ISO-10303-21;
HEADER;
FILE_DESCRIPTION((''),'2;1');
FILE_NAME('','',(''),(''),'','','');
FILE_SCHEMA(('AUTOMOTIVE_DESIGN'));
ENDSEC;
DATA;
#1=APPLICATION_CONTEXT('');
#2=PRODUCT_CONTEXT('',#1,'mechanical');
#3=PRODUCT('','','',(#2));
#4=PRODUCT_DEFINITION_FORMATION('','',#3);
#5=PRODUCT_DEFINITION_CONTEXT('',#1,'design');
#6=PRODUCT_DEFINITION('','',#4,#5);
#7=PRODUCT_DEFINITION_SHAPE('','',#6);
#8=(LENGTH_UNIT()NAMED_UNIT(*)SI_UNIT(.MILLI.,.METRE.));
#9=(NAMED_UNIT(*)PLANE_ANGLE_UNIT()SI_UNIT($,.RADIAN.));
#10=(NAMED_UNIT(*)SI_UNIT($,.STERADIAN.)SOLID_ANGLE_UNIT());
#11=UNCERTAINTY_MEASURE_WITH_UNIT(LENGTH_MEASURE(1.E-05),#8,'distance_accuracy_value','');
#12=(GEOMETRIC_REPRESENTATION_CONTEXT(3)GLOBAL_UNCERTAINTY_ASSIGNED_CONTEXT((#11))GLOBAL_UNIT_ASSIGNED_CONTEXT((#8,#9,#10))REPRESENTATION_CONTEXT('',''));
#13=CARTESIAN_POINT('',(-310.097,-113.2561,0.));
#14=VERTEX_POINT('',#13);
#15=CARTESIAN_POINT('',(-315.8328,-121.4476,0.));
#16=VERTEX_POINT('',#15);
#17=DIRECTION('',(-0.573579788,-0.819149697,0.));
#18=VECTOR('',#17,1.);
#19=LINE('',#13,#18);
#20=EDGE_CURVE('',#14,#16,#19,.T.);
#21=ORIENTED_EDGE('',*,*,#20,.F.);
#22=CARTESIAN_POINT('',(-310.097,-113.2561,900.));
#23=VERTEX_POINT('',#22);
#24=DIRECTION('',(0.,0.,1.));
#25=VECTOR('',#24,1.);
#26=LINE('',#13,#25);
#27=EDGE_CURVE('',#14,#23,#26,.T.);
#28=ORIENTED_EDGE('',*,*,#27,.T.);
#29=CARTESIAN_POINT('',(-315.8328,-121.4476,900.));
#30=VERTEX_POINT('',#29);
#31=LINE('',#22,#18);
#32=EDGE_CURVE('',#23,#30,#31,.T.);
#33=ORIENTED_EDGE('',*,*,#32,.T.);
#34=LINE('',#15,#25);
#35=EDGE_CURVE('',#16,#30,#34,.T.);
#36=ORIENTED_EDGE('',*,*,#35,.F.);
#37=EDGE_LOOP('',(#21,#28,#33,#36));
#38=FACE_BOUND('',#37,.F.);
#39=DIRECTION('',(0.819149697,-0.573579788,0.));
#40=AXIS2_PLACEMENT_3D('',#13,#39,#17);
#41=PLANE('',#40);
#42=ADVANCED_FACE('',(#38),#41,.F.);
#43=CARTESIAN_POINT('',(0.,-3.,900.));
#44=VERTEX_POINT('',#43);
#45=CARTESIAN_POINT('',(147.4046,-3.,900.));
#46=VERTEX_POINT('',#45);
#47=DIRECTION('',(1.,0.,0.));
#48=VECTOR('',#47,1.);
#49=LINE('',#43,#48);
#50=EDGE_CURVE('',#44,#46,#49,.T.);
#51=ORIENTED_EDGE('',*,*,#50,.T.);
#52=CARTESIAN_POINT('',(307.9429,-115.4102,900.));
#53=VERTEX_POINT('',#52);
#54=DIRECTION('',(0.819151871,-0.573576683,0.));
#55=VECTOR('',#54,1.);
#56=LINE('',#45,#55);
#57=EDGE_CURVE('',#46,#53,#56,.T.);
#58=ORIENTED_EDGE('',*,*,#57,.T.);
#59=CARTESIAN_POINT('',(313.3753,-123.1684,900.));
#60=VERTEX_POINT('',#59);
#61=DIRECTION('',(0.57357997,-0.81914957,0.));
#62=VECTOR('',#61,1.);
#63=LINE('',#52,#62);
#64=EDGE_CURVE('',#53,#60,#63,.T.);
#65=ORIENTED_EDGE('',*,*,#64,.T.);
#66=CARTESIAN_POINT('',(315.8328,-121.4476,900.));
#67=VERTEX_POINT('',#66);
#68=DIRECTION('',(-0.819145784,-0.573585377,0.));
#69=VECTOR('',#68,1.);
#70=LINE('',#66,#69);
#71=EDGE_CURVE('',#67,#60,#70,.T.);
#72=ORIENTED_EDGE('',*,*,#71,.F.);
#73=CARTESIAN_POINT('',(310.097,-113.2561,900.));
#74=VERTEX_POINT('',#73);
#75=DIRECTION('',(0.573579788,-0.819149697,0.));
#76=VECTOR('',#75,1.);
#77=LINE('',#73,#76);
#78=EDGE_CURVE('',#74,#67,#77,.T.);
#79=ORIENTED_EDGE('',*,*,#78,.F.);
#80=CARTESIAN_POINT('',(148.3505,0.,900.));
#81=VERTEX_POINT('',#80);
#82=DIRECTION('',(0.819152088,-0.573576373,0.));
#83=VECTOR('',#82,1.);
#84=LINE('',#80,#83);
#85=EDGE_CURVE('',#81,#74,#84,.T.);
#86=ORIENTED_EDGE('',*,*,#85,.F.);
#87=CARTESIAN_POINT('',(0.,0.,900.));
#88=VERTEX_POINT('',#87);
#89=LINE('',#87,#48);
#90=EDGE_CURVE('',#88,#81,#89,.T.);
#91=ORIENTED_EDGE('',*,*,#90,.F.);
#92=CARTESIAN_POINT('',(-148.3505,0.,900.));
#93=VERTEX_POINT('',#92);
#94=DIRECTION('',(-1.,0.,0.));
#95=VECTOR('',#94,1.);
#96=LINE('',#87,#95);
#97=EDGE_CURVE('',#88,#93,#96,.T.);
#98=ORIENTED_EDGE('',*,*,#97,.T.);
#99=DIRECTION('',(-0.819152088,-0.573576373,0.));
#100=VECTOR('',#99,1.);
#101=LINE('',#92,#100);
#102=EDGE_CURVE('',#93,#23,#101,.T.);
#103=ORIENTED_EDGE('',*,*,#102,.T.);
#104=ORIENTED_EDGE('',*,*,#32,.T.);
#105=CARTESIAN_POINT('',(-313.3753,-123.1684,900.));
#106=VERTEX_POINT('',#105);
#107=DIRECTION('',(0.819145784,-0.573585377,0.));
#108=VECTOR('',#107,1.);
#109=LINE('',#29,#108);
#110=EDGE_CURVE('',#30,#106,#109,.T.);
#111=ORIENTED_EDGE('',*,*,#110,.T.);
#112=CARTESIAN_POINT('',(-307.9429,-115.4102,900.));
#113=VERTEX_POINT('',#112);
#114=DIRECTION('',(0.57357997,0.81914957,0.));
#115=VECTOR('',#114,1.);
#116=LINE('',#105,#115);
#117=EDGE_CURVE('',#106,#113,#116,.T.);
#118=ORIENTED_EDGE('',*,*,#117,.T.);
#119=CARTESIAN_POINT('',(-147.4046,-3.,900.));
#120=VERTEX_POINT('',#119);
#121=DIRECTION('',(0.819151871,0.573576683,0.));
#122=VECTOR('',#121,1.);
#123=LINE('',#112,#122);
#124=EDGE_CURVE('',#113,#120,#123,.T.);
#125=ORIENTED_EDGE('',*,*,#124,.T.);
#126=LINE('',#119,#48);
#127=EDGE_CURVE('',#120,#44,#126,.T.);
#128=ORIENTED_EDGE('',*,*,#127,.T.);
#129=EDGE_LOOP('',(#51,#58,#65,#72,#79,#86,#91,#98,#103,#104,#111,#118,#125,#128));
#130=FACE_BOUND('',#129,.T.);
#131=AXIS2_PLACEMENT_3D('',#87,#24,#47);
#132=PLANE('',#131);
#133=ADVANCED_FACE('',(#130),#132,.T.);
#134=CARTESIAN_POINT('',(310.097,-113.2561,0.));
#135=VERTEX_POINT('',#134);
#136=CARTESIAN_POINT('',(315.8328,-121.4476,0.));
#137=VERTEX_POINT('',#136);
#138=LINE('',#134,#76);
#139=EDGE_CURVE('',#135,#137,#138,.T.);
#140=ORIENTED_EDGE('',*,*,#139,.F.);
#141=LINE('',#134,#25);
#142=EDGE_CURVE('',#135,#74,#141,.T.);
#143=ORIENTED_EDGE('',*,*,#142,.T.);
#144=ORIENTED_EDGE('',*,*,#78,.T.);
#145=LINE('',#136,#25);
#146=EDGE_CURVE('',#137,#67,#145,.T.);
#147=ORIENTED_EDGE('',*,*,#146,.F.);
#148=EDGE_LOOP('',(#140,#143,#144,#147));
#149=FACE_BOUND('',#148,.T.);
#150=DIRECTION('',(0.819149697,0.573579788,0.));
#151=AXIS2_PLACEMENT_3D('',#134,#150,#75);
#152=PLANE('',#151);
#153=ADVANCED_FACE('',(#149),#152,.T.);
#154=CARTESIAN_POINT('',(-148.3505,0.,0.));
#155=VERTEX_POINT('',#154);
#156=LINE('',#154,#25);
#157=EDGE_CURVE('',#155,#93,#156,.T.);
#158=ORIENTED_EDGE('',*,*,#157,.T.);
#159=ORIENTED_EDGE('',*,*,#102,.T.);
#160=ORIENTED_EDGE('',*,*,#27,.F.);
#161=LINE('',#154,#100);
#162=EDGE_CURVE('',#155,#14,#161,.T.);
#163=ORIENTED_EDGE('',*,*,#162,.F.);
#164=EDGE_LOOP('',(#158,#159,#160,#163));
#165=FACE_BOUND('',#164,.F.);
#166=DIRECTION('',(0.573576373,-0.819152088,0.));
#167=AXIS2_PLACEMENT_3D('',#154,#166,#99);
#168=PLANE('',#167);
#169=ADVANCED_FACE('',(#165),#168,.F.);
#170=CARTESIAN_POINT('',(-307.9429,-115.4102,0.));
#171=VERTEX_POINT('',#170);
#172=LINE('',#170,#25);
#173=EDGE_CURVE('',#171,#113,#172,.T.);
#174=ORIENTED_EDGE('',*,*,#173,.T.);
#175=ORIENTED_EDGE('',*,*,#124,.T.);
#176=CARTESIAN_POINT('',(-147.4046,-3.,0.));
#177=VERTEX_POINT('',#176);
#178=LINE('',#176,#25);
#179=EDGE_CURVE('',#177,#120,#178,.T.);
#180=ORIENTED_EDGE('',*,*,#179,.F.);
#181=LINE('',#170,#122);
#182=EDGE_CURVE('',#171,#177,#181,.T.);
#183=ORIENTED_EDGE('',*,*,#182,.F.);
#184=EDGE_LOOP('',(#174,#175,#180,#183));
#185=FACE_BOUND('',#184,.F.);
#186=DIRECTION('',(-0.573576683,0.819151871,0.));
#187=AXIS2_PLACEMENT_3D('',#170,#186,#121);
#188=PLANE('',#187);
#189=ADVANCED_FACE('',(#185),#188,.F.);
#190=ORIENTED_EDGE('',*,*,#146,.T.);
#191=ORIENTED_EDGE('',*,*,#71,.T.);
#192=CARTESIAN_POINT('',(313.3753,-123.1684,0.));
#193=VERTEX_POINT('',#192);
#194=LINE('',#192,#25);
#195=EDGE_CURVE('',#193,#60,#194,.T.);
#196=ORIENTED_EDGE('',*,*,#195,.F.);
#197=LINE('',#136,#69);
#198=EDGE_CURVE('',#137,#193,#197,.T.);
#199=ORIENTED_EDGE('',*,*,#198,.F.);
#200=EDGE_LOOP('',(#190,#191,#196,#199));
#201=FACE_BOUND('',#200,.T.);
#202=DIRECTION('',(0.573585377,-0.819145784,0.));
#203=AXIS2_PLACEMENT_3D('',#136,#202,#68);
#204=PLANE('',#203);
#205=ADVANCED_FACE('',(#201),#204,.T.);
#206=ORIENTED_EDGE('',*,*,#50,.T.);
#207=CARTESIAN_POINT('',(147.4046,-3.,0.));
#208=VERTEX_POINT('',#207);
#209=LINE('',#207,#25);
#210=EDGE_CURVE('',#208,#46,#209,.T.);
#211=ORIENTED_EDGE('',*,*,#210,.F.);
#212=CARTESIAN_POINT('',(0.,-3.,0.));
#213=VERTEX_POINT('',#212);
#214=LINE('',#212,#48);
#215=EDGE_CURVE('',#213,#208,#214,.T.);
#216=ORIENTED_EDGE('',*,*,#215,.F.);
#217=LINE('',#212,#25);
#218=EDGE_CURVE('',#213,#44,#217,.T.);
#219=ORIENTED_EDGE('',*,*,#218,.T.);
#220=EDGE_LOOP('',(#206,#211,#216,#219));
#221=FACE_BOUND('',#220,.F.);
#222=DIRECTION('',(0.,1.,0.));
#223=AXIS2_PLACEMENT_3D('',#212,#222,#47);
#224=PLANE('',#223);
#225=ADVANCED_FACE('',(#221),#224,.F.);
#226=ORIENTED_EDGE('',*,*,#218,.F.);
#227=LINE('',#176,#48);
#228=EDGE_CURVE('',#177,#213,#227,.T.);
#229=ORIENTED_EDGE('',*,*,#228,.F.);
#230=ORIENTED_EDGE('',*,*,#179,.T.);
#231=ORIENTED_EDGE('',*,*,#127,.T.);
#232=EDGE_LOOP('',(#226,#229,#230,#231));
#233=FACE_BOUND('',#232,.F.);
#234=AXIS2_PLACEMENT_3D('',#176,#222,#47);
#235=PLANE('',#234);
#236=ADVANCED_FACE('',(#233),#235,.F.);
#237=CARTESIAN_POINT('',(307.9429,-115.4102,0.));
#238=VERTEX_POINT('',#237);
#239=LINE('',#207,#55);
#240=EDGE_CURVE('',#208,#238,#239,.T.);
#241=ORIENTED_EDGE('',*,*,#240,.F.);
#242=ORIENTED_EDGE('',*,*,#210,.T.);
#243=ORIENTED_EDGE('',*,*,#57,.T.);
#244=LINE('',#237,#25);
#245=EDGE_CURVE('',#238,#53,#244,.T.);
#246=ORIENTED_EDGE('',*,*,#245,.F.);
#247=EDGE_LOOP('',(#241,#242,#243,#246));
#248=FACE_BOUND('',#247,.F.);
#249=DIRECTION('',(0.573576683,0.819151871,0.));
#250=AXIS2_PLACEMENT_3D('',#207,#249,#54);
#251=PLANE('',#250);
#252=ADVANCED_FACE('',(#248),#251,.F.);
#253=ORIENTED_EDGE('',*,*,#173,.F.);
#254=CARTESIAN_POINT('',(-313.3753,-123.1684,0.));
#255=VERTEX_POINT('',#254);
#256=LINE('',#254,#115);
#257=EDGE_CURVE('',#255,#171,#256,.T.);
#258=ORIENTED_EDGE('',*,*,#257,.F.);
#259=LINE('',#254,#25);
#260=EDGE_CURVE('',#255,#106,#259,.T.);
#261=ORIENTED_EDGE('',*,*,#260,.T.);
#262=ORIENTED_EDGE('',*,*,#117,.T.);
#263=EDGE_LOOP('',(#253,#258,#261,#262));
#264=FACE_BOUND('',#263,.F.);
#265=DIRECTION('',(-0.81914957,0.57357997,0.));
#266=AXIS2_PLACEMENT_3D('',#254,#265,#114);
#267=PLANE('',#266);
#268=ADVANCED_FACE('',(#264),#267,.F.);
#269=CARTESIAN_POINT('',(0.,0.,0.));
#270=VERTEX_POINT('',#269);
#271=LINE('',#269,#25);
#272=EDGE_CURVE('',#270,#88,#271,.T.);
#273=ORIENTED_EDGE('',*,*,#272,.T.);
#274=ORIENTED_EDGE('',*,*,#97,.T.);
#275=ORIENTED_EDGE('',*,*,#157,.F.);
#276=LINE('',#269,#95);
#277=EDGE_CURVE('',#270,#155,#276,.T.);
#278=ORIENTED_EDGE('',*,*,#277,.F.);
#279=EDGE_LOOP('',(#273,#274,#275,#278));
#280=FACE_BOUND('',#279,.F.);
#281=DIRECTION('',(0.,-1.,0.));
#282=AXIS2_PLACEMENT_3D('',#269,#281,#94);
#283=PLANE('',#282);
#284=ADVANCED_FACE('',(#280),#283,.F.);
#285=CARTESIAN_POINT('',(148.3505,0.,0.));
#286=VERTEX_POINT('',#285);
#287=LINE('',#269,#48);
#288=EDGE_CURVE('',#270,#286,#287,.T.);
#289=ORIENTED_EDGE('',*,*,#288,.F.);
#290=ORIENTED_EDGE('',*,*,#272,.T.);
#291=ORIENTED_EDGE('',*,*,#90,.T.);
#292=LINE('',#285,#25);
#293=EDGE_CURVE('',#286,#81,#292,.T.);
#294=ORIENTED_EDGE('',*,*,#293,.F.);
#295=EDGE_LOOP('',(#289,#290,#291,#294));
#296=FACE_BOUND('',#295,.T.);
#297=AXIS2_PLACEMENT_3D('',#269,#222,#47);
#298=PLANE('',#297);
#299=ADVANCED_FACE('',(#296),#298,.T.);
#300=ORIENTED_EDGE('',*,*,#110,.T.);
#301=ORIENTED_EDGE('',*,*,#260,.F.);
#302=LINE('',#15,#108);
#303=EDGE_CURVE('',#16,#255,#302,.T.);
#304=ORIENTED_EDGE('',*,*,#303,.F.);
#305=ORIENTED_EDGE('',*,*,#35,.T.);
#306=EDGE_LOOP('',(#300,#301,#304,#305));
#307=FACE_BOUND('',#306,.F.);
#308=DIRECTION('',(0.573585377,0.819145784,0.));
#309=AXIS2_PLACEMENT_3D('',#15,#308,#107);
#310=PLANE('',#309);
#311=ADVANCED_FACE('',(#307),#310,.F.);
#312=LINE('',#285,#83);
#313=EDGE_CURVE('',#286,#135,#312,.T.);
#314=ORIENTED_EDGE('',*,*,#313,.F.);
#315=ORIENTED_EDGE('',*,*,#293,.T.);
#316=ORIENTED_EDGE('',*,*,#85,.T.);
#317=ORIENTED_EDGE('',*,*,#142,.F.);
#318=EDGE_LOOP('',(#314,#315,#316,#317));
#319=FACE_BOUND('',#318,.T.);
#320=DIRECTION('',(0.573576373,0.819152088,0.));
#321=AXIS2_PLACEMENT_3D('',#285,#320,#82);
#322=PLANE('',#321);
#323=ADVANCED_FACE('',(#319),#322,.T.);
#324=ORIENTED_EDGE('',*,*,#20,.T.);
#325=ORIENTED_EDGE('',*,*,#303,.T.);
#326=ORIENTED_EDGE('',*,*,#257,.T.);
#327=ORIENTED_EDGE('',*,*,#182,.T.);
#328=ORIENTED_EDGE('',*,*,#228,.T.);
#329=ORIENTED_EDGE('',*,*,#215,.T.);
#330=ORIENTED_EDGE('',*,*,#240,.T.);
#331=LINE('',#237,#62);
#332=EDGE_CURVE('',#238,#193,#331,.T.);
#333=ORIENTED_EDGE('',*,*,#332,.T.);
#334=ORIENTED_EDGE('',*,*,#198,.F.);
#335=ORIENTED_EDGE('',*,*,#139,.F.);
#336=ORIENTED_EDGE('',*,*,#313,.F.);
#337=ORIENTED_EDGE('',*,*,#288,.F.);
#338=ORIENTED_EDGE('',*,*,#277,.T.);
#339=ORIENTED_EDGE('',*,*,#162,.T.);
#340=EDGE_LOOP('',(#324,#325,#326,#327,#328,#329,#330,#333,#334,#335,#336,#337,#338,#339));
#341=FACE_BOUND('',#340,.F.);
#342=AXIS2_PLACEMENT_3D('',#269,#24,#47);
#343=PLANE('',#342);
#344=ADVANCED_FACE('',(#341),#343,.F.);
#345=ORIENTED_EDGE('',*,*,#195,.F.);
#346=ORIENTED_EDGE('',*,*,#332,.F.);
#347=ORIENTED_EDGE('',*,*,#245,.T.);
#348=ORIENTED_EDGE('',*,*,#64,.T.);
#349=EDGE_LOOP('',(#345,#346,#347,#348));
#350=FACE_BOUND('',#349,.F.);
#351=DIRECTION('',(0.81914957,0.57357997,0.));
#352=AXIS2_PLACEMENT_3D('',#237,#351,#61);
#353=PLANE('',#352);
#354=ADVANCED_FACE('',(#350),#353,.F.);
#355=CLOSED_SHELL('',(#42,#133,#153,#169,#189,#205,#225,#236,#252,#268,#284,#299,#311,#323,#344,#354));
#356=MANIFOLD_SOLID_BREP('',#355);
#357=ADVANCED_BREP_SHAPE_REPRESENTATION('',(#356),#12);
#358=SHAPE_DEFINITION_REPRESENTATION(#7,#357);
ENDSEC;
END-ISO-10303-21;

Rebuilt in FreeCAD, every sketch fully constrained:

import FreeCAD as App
import Part
import Sketcher
Q = App.Units.Quantity


def add_polygon(sketch, points):
    """Adds a closed chain of lines whose ends are joined by coincident constraints."""
    first, n = sketch.GeometryCount, len(points)
    for a, b in zip(points, points[1:] + points[:1]):
        sketch.addGeometry(Part.LineSegment(App.Vector(*a, 0), App.Vector(*b, 0)), False)
    for i in range(n):
        sketch.addConstraint(Sketcher.Constraint("Coincident", first + i, 2, first + (i + 1) % n, 1))

doc = App.newDocument("Part")
body = doc.addObject("PartDesign::Body", "Body")

# Sketch on XY plane
sketch1 = doc.addObject("Sketcher::SketchObject", "Sketch")
body.addObject(sketch1)
sketch1.AttachmentSupport = (doc.XY_Plane, [""])
sketch1.MapMode = "FlatFace"
add_polygon(sketch1, [(148.3505, 0), (-148.3505, 0), (-310.097, -113.2561), (-315.8328, -121.4476), (-313.3753, -123.1684), (-307.9429, -115.4102), (-147.4046, -3), (147.4046, -3), (307.9429, -115.4102), (313.3753, -123.1684), (315.8328, -121.4476), (310.097, -113.2561)])  # lines 0-11
sketch1.addConstraint([
    Sketcher.Constraint("Horizontal", 0),
    Sketcher.Constraint("Horizontal", 6),
    Sketcher.Constraint("Symmetric", 0, 2, 11, 2, -1, 1),
    Sketcher.Constraint("Symmetric", 4, 2, 7, 2, -2),
    Sketcher.Constraint("Symmetric", 3, 2, 8, 2, -2),
    Sketcher.Constraint("Symmetric", 2, 2, 9, 2, -2),
    Sketcher.Constraint("Symmetric", 1, 2, 10, 2, -2),
    Sketcher.Constraint("Perpendicular", 2, 3),
    Sketcher.Constraint("Perpendicular", 3, 4),
    Sketcher.Constraint("Parallel", 1, 5),
    Sketcher.Constraint("Perpendicular", 4, 7),
    Sketcher.Constraint("Perpendicular", 5, 8),
    Sketcher.Constraint("Angle", 1, Q("-145 deg")),
    Sketcher.Constraint("Distance", 2, 10.0),
    Sketcher.Constraint("Distance", 3, 3.0),
    Sketcher.Constraint("DistanceY", 5, 2, -1, 1, 3.0),
    Sketcher.Constraint("DistanceX", 0, 2, 0, 1, 296.701),
    Sketcher.Constraint("Distance", 1, 197.456),
    Sketcher.Constraint("DistanceX", 2, 2, 4, 2, 7.89),
])
pad1 = doc.addObject("PartDesign::Pad", "Pad")
body.addObject(pad1)
pad1.Profile = sketch1
pad1.Length = 900

doc.recompute()
